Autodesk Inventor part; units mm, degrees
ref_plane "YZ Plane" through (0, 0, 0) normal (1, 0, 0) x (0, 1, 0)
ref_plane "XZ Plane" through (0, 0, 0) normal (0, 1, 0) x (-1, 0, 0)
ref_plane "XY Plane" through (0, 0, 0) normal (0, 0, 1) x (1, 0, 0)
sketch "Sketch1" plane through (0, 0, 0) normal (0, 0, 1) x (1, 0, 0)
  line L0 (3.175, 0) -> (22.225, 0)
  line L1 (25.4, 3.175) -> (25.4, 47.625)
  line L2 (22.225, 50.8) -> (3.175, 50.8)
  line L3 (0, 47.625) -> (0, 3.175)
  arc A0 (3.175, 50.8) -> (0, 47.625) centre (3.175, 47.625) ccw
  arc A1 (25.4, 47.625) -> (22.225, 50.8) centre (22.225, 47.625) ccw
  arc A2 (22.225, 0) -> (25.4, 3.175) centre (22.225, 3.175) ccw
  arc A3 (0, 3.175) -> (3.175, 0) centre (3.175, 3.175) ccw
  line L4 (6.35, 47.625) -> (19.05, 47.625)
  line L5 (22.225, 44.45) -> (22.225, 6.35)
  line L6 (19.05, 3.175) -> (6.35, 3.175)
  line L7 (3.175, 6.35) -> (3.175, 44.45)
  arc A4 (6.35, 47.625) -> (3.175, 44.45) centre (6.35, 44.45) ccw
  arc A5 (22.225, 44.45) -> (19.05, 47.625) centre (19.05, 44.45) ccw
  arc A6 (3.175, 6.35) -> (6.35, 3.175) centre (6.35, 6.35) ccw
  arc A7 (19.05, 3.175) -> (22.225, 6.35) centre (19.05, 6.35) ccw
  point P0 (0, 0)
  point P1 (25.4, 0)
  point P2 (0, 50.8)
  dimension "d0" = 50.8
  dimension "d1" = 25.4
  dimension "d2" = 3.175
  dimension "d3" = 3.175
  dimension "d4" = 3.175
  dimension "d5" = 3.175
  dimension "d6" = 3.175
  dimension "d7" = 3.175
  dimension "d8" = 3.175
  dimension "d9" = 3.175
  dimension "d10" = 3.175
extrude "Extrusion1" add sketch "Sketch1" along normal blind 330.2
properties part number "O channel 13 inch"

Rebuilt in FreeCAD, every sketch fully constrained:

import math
import FreeCAD as App
import Part
import Sketcher

V = App.Vector
Q = App.Units.Quantity

doc = App.newDocument("Part")
body = doc.addObject("PartDesign::Body", "Body")

# Sketch on XY plane
sketch1 = body.newObject("Sketcher::SketchObject", "Sketch")
sketch1.AttachmentSupport = (doc.getObject("XY_Plane"), [""])
sketch1.MapMode = "FlatFace"
sketch1.addGeometry([
    Part.ArcOfCircle(Part.Circle(V(3.175, 3.175, 0), V(0, 0, 1), 3.175), math.radians(180), math.radians(270)),  # 0
    Part.LineSegment(V(3.175, 0, 0), V(22.225, 0, 0)),  # 1
    Part.ArcOfCircle(Part.Circle(V(22.225, 3.175, 0), V(0, 0, 1), 3.175), math.radians(-90), math.radians(0)),  # 2
    Part.LineSegment(V(25.4, 3.175, 0), V(25.4, 47.625, 0)),  # 3
    Part.ArcOfCircle(Part.Circle(V(22.225, 47.625, 0), V(0, 0, 1), 3.175), math.radians(0), math.radians(90)),  # 4
    Part.LineSegment(V(22.225, 50.8, 0), V(3.175, 50.8, 0)),  # 5
    Part.ArcOfCircle(Part.Circle(V(3.175, 47.625, 0), V(0, 0, 1), 3.175), math.radians(90), math.radians(180)),  # 6
    Part.LineSegment(V(0, 47.625, 0), V(0, 3.175, 0)),  # 7
    Part.ArcOfCircle(Part.Circle(V(6.35, 44.45, 0), V(0, 0, 1), 3.175), math.radians(90), math.radians(180)),  # 8
    Part.LineSegment(V(6.35, 47.625, 0), V(19.05, 47.625, 0)),  # 9
    Part.ArcOfCircle(Part.Circle(V(19.05, 44.45, 0), V(0, 0, 1), 3.175), math.radians(0), math.radians(90)),  # 10
    Part.LineSegment(V(22.225, 44.45, 0), V(22.225, 6.35, 0)),  # 11
    Part.ArcOfCircle(Part.Circle(V(19.05, 6.35, 0), V(0, 0, 1), 3.175), math.radians(-90), math.radians(0)),  # 12
    Part.LineSegment(V(19.05, 3.175, 0), V(6.35, 3.175, 0)),  # 13
    Part.ArcOfCircle(Part.Circle(V(6.35, 6.35, 0), V(0, 0, 1), 3.175), math.radians(180), math.radians(270)),  # 14
    Part.LineSegment(V(3.175, 6.35, 0), V(3.175, 44.45, 0)),  # 15
], False)
sketch1.addConstraint([
    Sketcher.Constraint("Tangent", 0, 2, 1, 1),
    Sketcher.Constraint("Tangent", 1, 2, 2, 1),
    Sketcher.Constraint("Tangent", 2, 2, 3, 1),
    Sketcher.Constraint("Tangent", 3, 2, 4, 1),
    Sketcher.Constraint("Tangent", 4, 2, 5, 1),
    Sketcher.Constraint("Tangent", 5, 2, 6, 1),
    Sketcher.Constraint("Tangent", 6, 2, 7, 1),
    Sketcher.Constraint("Tangent", 7, 2, 0, 1),
    Sketcher.Constraint("Tangent", 8, 1, 9, 1),
    Sketcher.Constraint("Tangent", 9, 2, 10, 2),
    Sketcher.Constraint("Tangent", 10, 1, 11, 1),
    Sketcher.Constraint("Tangent", 11, 2, 12, 2),
    Sketcher.Constraint("Tangent", 12, 1, 13, 1),
    Sketcher.Constraint("Tangent", 13, 2, 14, 2),
    Sketcher.Constraint("Tangent", 14, 1, 15, 1),
    Sketcher.Constraint("Tangent", 15, 2, 8, 2),
    Sketcher.Constraint("Horizontal", 1),
    Sketcher.Constraint("Vertical", 3),
    Sketcher.Constraint("Horizontal", 5),
    Sketcher.Constraint("Vertical", 7),
    Sketcher.Constraint("Horizontal", 9),
    Sketcher.Constraint("Vertical", 11),
    Sketcher.Constraint("Horizontal", 13),
    Sketcher.Constraint("Vertical", 15),
    Sketcher.Constraint("Equal", 0, 2),
    Sketcher.Constraint("Equal", 2, 4),
    Sketcher.Constraint("Equal", 4, 6),
    Sketcher.Constraint("Equal", 6, 8),
    Sketcher.Constraint("Equal", 8, 10),
    Sketcher.Constraint("Equal", 10, 12),
    Sketcher.Constraint("Equal", 12, 14),
    Sketcher.Constraint("PointOnObject", 0, 2, -1),
    Sketcher.Constraint("PointOnObject", 6, 2, -2),
    Sketcher.Constraint("Horizontal", 6, 2, 8, 1),
    Sketcher.Constraint("Horizontal", 7, 2, 12, 1),
    Sketcher.Constraint("Vertical", 4, 2, 10, 1),
    Sketcher.Constraint("Vertical", 5, 2, 14, 1),
    Sketcher.Constraint("DistanceX", -1, 1, 2, 2, Q("1 in")),
    Sketcher.Constraint("DistanceY", -1, 1, 4, 2, Q("2 in")),
    Sketcher.Constraint("Radius", 0, Q("0.125 in")),
])
pad1 = body.newObject("PartDesign::Pad", "Pad")
pad1.Profile = sketch1
pad1.Length = Q("13 in")

doc.recompute()
